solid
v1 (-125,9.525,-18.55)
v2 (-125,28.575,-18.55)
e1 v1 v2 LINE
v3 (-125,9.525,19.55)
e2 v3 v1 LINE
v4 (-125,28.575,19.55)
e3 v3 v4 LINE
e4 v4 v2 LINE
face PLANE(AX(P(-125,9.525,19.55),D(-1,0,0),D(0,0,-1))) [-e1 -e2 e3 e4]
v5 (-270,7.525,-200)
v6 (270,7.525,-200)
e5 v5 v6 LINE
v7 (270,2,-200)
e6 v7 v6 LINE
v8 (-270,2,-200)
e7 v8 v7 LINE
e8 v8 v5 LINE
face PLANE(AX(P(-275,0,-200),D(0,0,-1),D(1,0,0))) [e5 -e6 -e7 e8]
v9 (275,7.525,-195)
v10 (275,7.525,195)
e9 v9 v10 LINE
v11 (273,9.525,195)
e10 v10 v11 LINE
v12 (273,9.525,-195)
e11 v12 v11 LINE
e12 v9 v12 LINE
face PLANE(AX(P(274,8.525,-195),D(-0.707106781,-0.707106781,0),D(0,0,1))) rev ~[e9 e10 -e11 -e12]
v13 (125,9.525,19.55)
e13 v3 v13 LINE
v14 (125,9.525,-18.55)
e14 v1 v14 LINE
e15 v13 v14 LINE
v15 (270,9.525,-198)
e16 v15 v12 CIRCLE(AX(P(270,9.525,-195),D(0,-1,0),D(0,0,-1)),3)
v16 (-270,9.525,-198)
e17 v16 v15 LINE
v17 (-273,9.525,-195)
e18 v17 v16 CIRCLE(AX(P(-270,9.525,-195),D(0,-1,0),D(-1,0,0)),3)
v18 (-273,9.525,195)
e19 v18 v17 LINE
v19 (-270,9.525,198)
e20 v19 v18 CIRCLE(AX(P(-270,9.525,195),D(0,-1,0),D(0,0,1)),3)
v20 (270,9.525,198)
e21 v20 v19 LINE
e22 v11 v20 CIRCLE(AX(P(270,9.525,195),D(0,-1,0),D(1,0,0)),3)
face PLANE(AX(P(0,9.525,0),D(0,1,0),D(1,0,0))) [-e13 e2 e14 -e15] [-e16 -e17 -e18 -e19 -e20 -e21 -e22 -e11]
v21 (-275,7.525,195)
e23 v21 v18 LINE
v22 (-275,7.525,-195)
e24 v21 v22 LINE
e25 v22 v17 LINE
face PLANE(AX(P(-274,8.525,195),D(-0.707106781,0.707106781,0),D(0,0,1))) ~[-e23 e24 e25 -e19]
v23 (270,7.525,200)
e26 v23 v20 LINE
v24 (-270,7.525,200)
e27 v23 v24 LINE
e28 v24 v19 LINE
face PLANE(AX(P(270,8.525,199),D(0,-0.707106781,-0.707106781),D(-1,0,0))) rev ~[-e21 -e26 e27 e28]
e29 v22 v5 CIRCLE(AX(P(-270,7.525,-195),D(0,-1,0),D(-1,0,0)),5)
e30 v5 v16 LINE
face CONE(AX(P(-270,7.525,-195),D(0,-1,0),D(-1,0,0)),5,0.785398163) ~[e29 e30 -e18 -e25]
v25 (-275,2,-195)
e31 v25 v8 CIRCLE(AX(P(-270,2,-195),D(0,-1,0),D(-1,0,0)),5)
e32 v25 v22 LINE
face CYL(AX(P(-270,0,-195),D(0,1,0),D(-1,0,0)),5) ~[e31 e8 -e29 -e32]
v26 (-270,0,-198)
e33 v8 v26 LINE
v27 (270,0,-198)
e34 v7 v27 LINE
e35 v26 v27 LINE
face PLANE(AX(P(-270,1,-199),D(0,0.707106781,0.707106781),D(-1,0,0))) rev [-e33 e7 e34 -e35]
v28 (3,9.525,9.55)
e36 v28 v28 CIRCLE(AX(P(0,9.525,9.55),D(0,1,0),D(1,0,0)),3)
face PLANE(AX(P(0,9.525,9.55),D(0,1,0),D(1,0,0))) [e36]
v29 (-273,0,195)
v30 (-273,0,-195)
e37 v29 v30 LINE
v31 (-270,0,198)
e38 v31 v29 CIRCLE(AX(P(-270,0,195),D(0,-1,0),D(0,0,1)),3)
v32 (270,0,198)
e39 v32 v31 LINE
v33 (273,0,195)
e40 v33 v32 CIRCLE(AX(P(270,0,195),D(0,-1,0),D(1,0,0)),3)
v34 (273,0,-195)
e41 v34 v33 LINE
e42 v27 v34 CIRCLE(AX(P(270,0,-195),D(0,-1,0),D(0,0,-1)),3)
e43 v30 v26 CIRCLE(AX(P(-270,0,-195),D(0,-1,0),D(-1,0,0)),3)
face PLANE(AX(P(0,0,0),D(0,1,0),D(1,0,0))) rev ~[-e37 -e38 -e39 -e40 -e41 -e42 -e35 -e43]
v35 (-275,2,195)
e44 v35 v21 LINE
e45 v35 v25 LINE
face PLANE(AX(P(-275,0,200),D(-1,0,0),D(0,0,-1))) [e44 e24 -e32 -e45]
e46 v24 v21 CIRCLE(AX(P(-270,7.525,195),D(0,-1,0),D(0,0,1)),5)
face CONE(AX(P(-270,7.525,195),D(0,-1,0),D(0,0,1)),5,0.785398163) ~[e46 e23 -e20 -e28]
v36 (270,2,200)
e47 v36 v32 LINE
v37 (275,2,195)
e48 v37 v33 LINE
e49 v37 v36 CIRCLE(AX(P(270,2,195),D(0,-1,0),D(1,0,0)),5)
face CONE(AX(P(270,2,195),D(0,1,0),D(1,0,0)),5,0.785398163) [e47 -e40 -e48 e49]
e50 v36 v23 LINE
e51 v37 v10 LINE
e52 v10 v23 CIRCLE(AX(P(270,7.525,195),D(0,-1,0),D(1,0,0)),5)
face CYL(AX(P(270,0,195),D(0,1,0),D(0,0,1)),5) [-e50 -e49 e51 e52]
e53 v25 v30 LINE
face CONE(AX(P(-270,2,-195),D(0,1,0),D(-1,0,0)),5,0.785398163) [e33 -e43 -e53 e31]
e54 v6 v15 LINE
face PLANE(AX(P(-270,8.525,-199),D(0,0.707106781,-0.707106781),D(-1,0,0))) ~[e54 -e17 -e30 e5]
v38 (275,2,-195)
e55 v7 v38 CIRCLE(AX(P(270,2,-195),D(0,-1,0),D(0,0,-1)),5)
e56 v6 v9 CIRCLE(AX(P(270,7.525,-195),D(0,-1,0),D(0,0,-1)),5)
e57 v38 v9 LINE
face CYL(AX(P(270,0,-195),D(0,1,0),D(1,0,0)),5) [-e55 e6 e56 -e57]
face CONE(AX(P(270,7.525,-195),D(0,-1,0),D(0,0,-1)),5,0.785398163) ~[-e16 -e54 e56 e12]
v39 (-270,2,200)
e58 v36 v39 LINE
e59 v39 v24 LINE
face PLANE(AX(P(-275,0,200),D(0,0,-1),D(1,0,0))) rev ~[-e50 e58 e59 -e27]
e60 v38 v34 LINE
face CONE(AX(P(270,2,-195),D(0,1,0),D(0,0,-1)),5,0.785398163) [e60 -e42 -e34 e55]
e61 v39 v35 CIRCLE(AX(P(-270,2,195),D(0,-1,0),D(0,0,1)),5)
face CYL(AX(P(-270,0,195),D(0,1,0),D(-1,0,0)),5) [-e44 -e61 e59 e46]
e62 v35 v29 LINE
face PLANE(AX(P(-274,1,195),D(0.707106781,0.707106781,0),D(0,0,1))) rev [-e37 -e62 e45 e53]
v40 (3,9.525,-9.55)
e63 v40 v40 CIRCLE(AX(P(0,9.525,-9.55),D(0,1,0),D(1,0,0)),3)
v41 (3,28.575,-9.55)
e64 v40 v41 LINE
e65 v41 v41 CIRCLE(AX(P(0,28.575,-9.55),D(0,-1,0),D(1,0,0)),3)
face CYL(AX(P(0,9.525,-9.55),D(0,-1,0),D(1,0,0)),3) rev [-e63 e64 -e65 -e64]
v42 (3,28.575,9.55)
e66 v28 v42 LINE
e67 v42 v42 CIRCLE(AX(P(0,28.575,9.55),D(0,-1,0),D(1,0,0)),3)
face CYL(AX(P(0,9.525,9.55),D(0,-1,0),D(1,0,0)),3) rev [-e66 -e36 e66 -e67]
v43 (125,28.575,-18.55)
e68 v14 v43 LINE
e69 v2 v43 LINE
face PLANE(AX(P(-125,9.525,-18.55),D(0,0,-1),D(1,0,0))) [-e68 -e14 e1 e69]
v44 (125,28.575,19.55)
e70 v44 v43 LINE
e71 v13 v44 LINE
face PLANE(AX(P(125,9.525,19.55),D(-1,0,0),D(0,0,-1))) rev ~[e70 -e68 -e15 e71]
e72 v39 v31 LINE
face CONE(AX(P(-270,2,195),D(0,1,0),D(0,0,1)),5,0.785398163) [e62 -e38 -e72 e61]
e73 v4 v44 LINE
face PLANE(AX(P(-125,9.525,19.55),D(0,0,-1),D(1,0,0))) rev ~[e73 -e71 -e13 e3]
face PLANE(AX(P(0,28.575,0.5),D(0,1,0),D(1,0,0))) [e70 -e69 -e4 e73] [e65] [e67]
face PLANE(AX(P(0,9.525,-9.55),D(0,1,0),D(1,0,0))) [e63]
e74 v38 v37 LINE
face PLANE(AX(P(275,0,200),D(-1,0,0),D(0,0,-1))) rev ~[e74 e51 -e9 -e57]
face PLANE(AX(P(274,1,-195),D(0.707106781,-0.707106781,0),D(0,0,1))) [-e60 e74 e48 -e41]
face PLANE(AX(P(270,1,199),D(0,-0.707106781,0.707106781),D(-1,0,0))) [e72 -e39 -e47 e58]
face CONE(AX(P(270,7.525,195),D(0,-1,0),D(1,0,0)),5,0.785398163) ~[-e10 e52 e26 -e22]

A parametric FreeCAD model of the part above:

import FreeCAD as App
import Part
import Sketcher
Q = App.Units.Quantity


def edges_at(feature, points):
    """Names of the edges that pass closest to the given points."""
    edges = feature.Shape.Edges
    near = lambda p: min(range(len(edges)), key=lambda i: edges[i].distToShape(Part.Vertex(*p))[0])
    return sorted({f"Edge{near(p) + 1}" for p in points})

doc = App.newDocument("Part")
body = doc.addObject("PartDesign::Body", "Body")

# Sketch on XZ plane
sketch1 = doc.addObject("Sketcher::SketchObject", "Sketch")
body.addObject(sketch1)
sketch1.AttachmentSupport = (doc.XZ_Plane, [""])
sketch1.MapMode = "FlatFace"
sketch1.addGeometry([
    Part.LineSegment(App.Vector(-275, -200, 0), App.Vector(-275, 200, 0)),
    Part.LineSegment(App.Vector(-275, 200, 0), App.Vector(275, 200, 0)),
    Part.LineSegment(App.Vector(275, 200, 0), App.Vector(275, -200, 0)),
    Part.LineSegment(App.Vector(275, -200, 0), App.Vector(-275, -200, 0)),
], False)
sketch1.addConstraint([
    Sketcher.Constraint("Coincident", 0, 2, 1, 1),
    Sketcher.Constraint("Coincident", 1, 2, 2, 1),
    Sketcher.Constraint("Coincident", 2, 2, 3, 1),
    Sketcher.Constraint("Coincident", 3, 2, 0, 1),
    Sketcher.Constraint("Vertical", 0),
    Sketcher.Constraint("Horizontal", 1),
    Sketcher.Constraint("Vertical", 2),
    Sketcher.Constraint("Horizontal", 3),
    Sketcher.Constraint("Symmetric", 0, 2, 2, 2, -1, 1),
    Sketcher.Constraint("DistanceX", 1, 1, 1, 2, Q("550 mm")),
    Sketcher.Constraint("DistanceY", 0, 1, 0, 2, Q("400 mm")),
])
pad1 = doc.addObject("PartDesign::Pad", "Pad")
body.addObject(pad1)
pad1.Profile = sketch1
pad1.Length = 9.525
pad1.Reversed = True
doc.recompute()

fillet = doc.addObject("PartDesign::Fillet", "Fillet")
body.addObject(fillet)
fillet.Base = (pad1, edges_at(pad1, [
    (275, 4.763, 200),
    (-275, 4.763, 200),
    (-275, 4.763, -200),
    (275, 4.763, -200),
]))
fillet.Radius = 5
doc.recompute()

chamfer = doc.addObject("PartDesign::Chamfer", "Chamfer")
body.addObject(chamfer)
chamfer.Base = (fillet, edges_at(fillet, [
    (-275, 9.525, 0),
    (0, 9.525, -200),
    (275, 9.525, 0),
    (0, 9.525, 200),
    (-273.536, 9.525, 198.536),
    (273.536, 9.525, 198.536),
    (273.536, 9.525, -198.536),
    (-273.536, 9.525, -198.536),
]))
chamfer.Size = 2
doc.recompute()

chamfer2 = doc.addObject("PartDesign::Chamfer", "Chamfer001")
body.addObject(chamfer2)
chamfer2.Base = (chamfer, edges_at(chamfer, [
    (-275, 0, 0),
    (275, 0, 0),
    (0, 0, 200),
    (0, 0, -200),
    (-273.536, 0, 198.536),
    (273.536, 0, 198.536),
    (273.536, 0, -198.536),
    (-273.536, 0, -198.536),
]))
chamfer2.Size = 2

# Sketch on XZ plane
sketch2 = doc.addObject("Sketcher::SketchObject", "Sketch001")
body.addObject(sketch2)
sketch2.AttachmentSupport = (doc.XZ_Plane, [""])
sketch2.MapMode = "FlatFace"
sketch2.AttachmentOffset = App.Placement(App.Vector(0, 0, -9.525), App.Rotation())
sketch2.addGeometry([
    Part.LineSegment(App.Vector(-125, -19, 0), App.Vector(-125, 20, 0)),
    Part.LineSegment(App.Vector(-125, 20, 0), App.Vector(125, 20, 0)),
    Part.LineSegment(App.Vector(125, 20, 0), App.Vector(125, -19, 0)),
    Part.LineSegment(App.Vector(125, -19, 0), App.Vector(-125, -19, 0)),
], False)
sketch2.addConstraint([
    Sketcher.Constraint("Coincident", 0, 2, 1, 1),
    Sketcher.Constraint("Coincident", 1, 2, 2, 1),
    Sketcher.Constraint("Coincident", 2, 2, 3, 1),
    Sketcher.Constraint("Coincident", 3, 2, 0, 1),
    Sketcher.Constraint("Vertical", 0),
    Sketcher.Constraint("Horizontal", 1),
    Sketcher.Constraint("Vertical", 2),
    Sketcher.Constraint("Horizontal", 3),
    Sketcher.Constraint("DistanceX", 1, 1, 1, 2, Q("250 mm")),
    Sketcher.Constraint("DistanceY", 0, 1, 0, 2, Q("38.1 mm")),
    Sketcher.Constraint("DistanceX", 0, 2, -1, 1, Q("125 mm")),
    Sketcher.Constraint("DistanceY", -1, 1, 0, 2, Q("19.55 mm")),
])
pad2 = doc.addObject("PartDesign::Pad", "Pad001")
body.addObject(pad2)
pad2.Profile = sketch2
pad2.Length = 19.05
pad2.Reversed = True

# Sketch on XZ plane
sketch3 = doc.addObject("Sketcher::SketchObject", "Sketch002")
body.addObject(sketch3)
sketch3.AttachmentSupport = (doc.XZ_Plane, [""])
sketch3.MapMode = "FlatFace"
sketch3.AttachmentOffset = App.Placement(App.Vector(0, 0, -9.525), App.Rotation())
sketch3.addGeometry([
    Part.Circle(App.Vector(0, -9.6, 0), App.Vector(0, 0, 1), 3),
    Part.Circle(App.Vector(0, 9.6, 0), App.Vector(0, 0, 1), 3),
], False)
sketch3.addConstraint([
    Sketcher.Constraint("Equal", 0, 1),
    Sketcher.Constraint("Symmetric", 0, 3, 1, 3, -1, 1),
    Sketcher.Constraint("PointOnObject", 0, 3, -2),
    Sketcher.Constraint("Diameter", 0, Q("6 mm")),
    Sketcher.Constraint("DistanceY", 0, 3, 1, 3, Q("19.1 mm")),
])
pocket1 = doc.addObject("PartDesign::Pocket", "Pocket")
body.addObject(pocket1)
pocket1.Profile = sketch3
pocket1.Type = "ThroughAll"

doc.recompute()
